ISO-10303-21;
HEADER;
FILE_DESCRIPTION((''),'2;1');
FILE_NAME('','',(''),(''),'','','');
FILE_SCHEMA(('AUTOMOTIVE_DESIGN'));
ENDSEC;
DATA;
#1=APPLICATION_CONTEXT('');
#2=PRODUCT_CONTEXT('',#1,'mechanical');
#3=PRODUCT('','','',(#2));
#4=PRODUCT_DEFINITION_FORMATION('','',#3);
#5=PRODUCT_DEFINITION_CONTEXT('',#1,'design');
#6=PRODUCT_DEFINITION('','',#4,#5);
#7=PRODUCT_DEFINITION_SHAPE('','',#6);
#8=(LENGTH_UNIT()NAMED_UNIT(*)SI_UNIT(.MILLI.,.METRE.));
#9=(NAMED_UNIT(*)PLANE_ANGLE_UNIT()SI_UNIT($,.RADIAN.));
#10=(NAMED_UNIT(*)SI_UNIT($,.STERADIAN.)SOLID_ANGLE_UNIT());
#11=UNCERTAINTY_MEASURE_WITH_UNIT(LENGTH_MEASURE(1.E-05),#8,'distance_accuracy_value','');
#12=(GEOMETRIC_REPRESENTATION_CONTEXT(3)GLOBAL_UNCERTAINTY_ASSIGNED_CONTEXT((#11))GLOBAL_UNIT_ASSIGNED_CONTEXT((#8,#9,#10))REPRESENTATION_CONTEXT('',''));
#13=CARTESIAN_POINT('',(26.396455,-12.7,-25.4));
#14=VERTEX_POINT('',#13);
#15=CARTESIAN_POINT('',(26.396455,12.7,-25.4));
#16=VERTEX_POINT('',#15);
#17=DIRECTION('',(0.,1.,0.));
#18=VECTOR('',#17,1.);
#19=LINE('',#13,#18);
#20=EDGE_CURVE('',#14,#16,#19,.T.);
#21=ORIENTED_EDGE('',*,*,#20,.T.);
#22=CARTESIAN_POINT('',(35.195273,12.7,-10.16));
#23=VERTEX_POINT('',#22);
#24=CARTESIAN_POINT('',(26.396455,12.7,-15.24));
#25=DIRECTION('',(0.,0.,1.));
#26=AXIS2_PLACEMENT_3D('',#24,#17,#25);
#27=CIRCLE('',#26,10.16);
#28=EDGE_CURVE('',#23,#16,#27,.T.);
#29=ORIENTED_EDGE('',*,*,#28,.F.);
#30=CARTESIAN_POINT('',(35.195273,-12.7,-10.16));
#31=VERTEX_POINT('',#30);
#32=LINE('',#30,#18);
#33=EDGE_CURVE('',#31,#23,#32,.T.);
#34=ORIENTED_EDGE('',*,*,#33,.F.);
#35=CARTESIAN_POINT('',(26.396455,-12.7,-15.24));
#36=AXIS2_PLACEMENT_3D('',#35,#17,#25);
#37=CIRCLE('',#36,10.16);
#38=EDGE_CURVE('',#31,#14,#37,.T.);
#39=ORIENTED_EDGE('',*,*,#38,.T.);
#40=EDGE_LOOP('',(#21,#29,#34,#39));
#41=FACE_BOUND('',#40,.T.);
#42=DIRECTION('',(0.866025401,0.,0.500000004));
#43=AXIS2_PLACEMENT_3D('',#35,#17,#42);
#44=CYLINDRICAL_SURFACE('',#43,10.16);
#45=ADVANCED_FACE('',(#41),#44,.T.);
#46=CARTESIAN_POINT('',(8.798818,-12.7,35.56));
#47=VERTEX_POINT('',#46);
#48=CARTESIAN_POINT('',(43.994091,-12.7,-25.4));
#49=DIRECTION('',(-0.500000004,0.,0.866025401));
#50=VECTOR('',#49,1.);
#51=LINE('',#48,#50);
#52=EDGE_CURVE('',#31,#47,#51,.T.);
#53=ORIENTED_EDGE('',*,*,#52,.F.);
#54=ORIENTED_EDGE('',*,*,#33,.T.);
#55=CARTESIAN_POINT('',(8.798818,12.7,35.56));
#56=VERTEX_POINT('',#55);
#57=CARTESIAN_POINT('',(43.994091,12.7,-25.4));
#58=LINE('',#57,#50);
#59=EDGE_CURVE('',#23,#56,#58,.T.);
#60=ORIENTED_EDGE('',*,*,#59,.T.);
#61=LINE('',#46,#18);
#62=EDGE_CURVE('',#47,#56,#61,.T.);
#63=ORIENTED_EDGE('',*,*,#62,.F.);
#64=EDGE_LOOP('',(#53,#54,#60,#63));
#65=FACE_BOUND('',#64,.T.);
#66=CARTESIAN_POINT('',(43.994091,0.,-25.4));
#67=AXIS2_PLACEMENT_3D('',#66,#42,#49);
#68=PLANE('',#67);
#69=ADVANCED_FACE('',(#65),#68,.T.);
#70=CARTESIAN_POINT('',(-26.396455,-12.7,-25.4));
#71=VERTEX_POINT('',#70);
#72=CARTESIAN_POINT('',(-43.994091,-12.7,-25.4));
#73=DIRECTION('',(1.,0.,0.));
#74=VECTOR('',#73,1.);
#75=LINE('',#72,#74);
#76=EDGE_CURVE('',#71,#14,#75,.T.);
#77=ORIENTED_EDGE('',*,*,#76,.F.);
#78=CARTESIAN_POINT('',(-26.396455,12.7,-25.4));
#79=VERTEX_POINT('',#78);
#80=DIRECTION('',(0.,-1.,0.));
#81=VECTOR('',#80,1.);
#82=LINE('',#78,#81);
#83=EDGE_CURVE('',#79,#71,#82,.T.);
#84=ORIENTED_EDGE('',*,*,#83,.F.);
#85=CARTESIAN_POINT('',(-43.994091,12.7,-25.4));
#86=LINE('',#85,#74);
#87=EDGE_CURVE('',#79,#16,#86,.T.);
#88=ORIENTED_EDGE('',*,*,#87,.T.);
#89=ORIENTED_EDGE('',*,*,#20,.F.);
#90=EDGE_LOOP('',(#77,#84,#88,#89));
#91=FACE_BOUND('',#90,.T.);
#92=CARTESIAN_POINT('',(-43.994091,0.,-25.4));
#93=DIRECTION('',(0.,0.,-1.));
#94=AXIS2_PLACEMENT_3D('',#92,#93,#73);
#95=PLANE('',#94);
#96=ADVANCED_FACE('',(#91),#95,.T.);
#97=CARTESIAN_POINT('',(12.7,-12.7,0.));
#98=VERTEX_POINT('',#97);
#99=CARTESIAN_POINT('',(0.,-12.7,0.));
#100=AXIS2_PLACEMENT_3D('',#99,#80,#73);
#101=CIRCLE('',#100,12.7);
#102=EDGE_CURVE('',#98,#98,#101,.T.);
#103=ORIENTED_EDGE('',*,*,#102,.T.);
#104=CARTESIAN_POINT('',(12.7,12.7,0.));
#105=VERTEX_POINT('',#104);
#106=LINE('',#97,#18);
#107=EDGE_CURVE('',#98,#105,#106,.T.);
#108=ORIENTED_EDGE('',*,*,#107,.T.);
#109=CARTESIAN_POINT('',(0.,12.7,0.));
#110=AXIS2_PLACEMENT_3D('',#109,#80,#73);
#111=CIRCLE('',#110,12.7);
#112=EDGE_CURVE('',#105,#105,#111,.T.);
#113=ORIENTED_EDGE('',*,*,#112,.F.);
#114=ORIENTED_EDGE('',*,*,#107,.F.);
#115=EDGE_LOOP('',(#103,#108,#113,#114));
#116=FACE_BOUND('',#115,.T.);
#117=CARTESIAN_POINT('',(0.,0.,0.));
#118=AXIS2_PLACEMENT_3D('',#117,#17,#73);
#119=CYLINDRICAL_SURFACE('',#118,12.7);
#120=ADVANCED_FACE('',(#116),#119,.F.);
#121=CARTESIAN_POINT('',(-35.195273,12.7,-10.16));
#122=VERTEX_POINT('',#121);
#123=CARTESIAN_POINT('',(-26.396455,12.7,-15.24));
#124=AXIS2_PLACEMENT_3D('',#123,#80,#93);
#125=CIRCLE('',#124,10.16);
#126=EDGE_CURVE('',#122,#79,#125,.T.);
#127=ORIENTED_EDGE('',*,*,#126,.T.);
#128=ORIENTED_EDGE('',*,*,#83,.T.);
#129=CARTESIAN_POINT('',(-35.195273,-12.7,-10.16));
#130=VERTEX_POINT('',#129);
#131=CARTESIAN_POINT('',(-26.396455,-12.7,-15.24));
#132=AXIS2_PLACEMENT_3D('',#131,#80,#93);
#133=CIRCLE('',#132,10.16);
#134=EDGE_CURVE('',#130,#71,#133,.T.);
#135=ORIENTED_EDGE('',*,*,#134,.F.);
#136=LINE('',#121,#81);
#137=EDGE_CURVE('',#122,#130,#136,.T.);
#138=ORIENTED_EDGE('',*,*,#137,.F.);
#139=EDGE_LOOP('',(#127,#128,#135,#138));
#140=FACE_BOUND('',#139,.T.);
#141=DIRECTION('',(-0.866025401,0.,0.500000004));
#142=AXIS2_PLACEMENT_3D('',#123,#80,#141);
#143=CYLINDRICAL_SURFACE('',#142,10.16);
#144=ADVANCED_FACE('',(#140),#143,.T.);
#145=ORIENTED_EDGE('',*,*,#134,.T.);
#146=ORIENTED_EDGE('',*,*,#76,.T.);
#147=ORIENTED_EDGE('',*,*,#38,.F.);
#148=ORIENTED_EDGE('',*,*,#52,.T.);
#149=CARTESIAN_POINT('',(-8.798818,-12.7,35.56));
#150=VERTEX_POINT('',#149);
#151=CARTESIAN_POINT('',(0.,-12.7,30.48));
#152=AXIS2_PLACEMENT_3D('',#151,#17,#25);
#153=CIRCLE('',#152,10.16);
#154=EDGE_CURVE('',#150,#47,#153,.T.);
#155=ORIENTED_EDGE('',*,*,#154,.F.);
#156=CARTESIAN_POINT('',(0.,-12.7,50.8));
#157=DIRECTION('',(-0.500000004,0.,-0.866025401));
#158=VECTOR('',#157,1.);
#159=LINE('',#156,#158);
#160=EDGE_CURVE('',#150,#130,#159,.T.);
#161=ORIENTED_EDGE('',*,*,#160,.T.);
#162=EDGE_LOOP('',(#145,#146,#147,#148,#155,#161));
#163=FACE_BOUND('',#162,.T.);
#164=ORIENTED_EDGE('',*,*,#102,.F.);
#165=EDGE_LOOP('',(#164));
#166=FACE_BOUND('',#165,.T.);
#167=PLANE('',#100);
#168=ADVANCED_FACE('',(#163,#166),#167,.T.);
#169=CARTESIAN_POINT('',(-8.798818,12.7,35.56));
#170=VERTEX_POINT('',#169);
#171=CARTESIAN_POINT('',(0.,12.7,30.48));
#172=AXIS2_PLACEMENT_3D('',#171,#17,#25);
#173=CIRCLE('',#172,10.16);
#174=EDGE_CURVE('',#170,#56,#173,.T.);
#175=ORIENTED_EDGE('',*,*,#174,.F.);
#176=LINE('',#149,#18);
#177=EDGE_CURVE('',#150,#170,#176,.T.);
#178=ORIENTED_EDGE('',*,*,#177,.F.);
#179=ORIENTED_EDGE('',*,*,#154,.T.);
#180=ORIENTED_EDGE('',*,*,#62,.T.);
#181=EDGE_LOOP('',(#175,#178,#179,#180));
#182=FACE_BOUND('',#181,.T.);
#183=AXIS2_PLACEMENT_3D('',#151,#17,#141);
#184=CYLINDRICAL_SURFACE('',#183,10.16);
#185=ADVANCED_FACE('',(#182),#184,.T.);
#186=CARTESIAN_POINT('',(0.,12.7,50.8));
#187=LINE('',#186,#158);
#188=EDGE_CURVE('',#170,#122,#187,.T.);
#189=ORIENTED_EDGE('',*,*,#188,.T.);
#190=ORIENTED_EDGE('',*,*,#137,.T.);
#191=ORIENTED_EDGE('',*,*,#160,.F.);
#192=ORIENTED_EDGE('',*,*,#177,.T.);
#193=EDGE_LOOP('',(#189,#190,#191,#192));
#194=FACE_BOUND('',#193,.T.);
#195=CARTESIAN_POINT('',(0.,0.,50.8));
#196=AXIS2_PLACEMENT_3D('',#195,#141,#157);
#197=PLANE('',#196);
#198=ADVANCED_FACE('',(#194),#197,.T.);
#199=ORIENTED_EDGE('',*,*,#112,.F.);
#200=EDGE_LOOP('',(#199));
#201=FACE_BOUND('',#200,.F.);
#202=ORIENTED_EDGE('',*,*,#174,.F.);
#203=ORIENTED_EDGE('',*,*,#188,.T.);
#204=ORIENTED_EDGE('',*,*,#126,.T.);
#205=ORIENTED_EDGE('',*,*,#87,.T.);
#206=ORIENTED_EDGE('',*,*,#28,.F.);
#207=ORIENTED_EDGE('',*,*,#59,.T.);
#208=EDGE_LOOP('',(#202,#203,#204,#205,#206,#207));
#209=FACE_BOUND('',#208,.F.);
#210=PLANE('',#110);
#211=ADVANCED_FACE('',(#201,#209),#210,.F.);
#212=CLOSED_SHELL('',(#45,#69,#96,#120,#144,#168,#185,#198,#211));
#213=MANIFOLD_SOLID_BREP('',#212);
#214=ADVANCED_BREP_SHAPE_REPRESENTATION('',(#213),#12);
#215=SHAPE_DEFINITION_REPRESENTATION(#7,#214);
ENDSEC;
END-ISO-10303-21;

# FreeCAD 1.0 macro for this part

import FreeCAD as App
import Part
import Sketcher

V = App.Vector
Q = App.Units.Quantity


def edges_at(feature, points):
    """Names of the edges that pass closest to the given points."""
    edges = feature.Shape.Edges
    near = lambda p: min(range(len(edges)), key=lambda i: edges[i].distToShape(Part.Vertex(*p))[0])
    return sorted({f"Edge{near(p) + 1}" for p in points})


def add_polygon(sketch, points):
    """Adds a closed chain of lines whose ends are joined by coincident constraints."""
    first, n = sketch.GeometryCount, len(points)
    for a, b in zip(points, points[1:] + points[:1]):
        sketch.addGeometry(Part.LineSegment(App.Vector(*a, 0), App.Vector(*b, 0)), False)
    for i in range(n):
        sketch.addConstraint(Sketcher.Constraint("Coincident", first + i, 2, first + (i + 1) % n, 1))

doc = App.newDocument("Part")
body = doc.addObject("PartDesign::Body", "Body")

sketch1 = body.newObject("Sketcher::SketchObject", "Sketch")
sketch1.AttachmentSupport = (doc.getObject("XZ_Plane"), [""])
sketch1.MapMode = "FlatFace"
add_polygon(sketch1, [(0, 51), (-44, -25), (44, -25)])
sketch1.addGeometry(Part.Circle(V(0, 0, 0), V(0, 0, 1), 13), False)
sketch1.addConstraint(Sketcher.Constraint("Horizontal", 1))
sketch1.addConstraint(Sketcher.Constraint("Coincident", 3, 3, -1, 1))
sketch1.addConstraint(Sketcher.Constraint("PointOnObject", 2, 2, -2))
sketch1.addConstraint(Sketcher.Constraint("Equal", 0, 2))
sketch1.addConstraint(Sketcher.Constraint("Diameter", 3, Q("1 in")))
sketch1.addConstraint(Sketcher.Constraint("DistanceY", 0, 2, -1, 1, Q("1 in")))
sketch1.addConstraint(Sketcher.Constraint("DistanceY", -1, 1, 2, 2, Q("2 in")))
sketch1.addConstraint(Sketcher.Constraint("Angle", 0, Q("-120 deg")))
pad1 = body.newObject("PartDesign::Pad", "Pad")
pad1.Profile = sketch1
pad1.Length = Q("1 in")
pad1.Midplane = True
doc.recompute()

fillet = body.newObject("PartDesign::Fillet", "Fillet")
fillet.Base = (pad1, edges_at(pad1, [(-43.994, 0, -25.4), (43.994, 0, -25.4), (0, 0, 50.8)]))
fillet.Radius = Q("0.4 in")

doc.recompute()
